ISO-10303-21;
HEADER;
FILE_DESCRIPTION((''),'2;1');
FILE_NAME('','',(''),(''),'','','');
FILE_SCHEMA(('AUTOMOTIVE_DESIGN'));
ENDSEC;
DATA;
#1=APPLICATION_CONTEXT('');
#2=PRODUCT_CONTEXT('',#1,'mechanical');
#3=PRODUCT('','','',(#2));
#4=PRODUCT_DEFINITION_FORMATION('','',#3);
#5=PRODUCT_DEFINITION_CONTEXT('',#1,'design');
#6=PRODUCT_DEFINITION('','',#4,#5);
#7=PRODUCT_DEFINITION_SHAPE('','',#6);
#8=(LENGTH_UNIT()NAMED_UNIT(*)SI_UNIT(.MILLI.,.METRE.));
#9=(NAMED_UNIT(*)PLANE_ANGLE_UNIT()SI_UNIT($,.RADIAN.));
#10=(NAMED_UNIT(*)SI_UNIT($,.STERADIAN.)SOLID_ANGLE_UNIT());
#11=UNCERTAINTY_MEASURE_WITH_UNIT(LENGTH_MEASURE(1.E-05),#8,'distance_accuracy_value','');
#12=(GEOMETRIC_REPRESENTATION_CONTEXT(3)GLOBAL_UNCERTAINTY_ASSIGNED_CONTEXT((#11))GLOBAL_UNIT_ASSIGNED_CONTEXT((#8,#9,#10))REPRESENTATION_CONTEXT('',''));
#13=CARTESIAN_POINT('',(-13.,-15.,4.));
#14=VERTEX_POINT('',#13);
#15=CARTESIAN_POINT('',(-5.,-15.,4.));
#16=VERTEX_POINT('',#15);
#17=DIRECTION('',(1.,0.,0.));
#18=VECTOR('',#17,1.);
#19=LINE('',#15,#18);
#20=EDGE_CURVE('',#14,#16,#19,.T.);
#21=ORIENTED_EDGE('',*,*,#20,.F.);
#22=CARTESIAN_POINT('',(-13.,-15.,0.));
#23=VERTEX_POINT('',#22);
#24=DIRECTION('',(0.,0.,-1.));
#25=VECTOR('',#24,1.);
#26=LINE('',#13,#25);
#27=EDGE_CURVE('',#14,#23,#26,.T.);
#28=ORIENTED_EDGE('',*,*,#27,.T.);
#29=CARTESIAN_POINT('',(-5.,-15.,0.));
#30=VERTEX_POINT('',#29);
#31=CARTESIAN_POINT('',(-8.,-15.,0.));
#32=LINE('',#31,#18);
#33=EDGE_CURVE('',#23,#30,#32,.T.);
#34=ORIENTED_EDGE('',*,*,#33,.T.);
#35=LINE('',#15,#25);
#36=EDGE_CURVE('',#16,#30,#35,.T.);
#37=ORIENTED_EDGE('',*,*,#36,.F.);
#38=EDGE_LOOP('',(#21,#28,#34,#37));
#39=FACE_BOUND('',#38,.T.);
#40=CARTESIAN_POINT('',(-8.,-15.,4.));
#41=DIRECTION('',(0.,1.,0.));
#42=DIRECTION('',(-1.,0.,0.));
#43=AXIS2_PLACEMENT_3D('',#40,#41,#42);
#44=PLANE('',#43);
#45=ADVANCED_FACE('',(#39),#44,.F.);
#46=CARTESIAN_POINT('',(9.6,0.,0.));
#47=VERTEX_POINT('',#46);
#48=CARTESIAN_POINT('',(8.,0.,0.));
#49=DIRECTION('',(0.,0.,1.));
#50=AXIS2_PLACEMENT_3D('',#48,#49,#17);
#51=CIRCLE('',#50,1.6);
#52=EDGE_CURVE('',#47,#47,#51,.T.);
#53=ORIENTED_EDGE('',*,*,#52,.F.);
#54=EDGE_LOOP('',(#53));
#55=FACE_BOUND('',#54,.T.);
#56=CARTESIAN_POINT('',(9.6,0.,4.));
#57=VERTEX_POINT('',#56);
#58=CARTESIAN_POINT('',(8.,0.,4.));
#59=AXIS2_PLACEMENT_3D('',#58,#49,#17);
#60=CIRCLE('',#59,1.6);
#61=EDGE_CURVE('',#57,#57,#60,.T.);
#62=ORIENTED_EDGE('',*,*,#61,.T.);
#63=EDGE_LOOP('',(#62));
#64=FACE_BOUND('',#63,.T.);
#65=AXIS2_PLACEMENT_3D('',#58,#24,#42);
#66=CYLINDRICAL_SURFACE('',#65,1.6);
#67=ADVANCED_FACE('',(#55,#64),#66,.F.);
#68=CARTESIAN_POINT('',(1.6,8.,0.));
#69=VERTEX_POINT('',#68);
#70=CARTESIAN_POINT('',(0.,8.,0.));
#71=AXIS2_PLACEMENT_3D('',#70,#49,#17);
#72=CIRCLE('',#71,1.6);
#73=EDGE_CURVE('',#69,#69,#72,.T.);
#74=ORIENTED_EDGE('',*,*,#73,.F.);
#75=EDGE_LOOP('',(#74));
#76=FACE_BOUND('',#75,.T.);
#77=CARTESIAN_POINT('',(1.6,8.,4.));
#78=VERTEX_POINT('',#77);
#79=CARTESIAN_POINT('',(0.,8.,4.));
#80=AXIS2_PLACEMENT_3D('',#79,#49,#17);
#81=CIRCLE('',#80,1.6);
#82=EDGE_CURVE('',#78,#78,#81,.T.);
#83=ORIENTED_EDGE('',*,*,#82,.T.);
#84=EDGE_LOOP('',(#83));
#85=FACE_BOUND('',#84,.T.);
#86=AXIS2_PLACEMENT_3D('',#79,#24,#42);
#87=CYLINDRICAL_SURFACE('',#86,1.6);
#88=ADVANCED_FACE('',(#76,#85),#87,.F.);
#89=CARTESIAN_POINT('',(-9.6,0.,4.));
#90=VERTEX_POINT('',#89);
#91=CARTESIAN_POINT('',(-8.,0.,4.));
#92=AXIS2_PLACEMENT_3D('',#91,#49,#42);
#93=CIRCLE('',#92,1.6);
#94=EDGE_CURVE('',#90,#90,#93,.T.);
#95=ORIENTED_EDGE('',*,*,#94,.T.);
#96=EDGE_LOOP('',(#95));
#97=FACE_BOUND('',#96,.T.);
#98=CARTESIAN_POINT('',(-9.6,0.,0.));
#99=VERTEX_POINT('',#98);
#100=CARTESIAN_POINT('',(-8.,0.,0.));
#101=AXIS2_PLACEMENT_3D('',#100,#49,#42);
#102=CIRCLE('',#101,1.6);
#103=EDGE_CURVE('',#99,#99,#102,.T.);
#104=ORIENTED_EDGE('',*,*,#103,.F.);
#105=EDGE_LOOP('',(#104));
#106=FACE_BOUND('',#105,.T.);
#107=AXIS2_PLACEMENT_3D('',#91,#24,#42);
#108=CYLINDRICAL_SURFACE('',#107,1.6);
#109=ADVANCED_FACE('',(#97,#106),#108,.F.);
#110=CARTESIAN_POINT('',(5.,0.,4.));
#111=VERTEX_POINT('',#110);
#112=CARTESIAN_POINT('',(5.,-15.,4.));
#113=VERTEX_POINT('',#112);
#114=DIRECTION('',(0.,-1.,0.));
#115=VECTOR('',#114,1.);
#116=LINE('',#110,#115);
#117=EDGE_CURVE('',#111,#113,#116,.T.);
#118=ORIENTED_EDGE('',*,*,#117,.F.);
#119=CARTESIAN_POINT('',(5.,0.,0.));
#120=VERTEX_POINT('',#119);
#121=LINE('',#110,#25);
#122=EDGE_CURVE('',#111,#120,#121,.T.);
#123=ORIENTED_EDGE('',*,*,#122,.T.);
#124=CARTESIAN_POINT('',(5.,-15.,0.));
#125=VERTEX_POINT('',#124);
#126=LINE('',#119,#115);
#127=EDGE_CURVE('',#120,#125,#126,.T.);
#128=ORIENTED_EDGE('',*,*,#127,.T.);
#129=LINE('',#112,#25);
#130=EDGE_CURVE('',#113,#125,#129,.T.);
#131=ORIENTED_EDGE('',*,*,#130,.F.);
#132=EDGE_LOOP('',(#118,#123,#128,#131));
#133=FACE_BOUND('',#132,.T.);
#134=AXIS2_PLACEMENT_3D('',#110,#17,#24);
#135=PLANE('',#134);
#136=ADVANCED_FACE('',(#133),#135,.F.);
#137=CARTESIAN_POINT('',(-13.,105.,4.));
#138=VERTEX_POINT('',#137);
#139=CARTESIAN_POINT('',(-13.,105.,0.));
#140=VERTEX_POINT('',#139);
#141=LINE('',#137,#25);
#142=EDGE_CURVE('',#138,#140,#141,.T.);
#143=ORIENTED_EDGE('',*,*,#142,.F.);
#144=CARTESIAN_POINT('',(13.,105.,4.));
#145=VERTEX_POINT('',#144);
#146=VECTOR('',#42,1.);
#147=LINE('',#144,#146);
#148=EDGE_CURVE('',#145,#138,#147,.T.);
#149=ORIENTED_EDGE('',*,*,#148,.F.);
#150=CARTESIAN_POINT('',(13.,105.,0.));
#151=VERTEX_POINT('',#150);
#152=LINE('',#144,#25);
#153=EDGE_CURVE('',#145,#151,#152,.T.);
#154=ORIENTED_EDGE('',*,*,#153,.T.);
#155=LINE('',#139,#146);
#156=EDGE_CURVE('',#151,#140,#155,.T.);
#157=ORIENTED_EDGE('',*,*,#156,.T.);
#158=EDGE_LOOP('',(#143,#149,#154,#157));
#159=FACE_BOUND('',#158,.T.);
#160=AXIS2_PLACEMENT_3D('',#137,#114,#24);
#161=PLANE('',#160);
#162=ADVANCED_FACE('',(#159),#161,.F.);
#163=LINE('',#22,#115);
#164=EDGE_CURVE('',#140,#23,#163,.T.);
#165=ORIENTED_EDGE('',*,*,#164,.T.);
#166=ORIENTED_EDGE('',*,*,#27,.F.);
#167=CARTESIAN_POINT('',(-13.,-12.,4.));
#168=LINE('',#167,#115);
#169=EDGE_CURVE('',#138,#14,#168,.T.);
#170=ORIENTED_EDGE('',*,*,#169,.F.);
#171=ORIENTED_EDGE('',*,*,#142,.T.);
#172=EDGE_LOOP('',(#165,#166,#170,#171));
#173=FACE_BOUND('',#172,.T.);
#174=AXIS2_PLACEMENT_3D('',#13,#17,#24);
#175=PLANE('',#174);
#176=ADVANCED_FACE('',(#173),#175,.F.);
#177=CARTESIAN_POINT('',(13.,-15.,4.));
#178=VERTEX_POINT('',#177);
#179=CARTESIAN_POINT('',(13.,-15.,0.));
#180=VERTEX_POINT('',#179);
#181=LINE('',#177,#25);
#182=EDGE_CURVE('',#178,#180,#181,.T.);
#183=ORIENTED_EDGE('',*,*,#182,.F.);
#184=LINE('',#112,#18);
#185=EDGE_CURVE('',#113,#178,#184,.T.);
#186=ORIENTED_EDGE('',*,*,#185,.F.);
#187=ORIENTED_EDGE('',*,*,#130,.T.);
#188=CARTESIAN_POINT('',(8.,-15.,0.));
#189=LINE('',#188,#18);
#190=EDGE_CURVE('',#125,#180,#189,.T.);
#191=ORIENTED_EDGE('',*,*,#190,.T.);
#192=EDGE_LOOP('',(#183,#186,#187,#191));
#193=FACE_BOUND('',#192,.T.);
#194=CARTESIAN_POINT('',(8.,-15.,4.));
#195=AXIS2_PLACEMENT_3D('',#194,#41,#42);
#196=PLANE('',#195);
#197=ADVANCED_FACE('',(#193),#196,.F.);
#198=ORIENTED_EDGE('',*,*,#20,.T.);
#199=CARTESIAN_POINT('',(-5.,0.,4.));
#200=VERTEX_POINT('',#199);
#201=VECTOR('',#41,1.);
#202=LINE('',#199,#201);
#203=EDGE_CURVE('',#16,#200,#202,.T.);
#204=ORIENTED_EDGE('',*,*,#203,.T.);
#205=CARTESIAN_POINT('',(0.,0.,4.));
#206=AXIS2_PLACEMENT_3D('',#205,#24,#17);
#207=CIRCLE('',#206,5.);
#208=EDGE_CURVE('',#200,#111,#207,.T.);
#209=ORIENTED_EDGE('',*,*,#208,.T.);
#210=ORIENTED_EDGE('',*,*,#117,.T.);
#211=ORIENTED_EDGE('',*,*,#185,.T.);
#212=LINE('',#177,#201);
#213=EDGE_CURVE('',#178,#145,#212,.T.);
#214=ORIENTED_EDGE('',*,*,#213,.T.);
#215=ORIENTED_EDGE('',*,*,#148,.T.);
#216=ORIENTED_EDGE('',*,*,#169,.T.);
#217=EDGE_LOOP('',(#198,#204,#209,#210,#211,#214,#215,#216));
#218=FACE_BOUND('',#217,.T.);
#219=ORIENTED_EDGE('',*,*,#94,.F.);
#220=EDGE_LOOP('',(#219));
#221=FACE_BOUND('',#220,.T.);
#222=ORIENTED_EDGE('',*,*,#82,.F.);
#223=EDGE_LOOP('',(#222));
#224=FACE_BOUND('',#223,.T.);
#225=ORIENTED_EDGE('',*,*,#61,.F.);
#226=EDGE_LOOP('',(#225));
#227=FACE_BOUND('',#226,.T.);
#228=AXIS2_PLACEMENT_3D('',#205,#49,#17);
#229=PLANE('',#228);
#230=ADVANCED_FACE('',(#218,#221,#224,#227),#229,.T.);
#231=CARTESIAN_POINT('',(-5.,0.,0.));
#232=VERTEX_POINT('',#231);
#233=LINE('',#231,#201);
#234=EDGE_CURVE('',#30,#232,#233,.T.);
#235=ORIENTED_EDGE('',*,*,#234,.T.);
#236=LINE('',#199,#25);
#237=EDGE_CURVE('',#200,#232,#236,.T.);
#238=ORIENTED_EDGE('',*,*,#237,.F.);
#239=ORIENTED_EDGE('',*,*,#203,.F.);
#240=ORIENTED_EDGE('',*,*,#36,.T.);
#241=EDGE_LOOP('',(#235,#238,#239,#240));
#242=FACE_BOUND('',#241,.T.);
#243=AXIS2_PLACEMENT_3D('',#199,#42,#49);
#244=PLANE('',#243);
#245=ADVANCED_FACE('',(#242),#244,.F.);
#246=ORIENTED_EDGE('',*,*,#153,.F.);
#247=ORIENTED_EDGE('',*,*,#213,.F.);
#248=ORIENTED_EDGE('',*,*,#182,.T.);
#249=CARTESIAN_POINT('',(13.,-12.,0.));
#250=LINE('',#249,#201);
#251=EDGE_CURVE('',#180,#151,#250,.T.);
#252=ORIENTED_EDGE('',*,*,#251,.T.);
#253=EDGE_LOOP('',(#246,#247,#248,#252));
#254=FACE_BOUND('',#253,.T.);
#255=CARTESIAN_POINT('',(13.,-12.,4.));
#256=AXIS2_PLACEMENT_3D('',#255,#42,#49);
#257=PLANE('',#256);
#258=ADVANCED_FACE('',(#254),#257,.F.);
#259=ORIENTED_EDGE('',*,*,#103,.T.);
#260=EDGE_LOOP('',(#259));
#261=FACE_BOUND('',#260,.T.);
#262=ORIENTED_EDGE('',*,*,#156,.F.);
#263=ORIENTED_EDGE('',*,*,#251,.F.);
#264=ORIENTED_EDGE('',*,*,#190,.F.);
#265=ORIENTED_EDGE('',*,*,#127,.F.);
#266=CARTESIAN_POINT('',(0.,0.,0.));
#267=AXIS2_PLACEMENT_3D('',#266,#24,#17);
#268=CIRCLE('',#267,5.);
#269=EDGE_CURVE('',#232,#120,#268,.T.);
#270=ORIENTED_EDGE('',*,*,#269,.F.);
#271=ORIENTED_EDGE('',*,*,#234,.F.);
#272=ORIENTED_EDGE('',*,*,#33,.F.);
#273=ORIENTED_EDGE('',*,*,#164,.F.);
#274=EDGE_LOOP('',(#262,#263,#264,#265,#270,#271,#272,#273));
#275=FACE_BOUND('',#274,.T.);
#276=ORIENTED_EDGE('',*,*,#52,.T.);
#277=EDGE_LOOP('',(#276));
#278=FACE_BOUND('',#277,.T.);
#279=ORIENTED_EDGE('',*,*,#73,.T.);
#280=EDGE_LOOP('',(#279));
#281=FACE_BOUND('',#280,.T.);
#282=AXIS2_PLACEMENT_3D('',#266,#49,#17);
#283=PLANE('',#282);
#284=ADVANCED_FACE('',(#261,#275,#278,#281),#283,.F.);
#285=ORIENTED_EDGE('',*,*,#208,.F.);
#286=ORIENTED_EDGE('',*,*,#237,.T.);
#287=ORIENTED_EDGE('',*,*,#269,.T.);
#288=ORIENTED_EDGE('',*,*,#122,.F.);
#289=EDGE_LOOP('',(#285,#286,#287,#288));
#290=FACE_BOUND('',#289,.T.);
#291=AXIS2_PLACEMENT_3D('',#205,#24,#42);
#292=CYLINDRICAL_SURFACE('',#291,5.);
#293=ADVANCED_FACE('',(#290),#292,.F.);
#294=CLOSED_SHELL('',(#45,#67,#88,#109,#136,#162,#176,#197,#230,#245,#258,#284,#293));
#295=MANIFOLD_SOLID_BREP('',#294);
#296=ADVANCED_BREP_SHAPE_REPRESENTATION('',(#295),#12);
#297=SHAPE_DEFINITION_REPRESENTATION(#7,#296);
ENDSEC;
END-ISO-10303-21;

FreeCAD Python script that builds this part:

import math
import FreeCAD as App
import Part
import Sketcher
from FreeCAD import Vector

doc = App.newDocument("Part")
params = doc.addObject("Spreadsheet::Sheet", "Params")
for row, (alias, value) in enumerate([
    ("sketch1_radius", "5 mm"),
    ("sketch1_diameter", "3.2 mm"),
    ("sketch1_width", "8 mm"),
    ("sketch1_height", "120 mm"),
    ("sketch1_height2", "15 mm"),
    ("pad1_length", "4 mm"),
], start=1):
    params.set(f"A{row}", alias)
    params.set(f"B{row}", "=" + value)
    params.setAlias(f"B{row}", alias)

body = doc.addObject("PartDesign::Body", "Body")

sketch1 = doc.addObject("Sketcher::SketchObject", "Sketch")
body.addObject(sketch1)
sketch1.AttachmentSupport = (doc.XY_Plane, [""])
sketch1.MapMode = "FlatFace"
sketch1.addGeometry([
    Part.LineSegment(Vector(-13, 105, 0), Vector(-13, -15, 0)),
    Part.LineSegment(Vector(-13, -15, 0), Vector(-5, -15, 0)),
    Part.LineSegment(Vector(-5, -15, 0), Vector(-5, 0, 0)),
    Part.ArcOfCircle(Part.Circle(Vector(0, 0, 0), Vector(0, 0, 1), 5), math.radians(0), math.radians(180)),
    Part.LineSegment(Vector(5, 0, 0), Vector(5, -15, 0)),
    Part.LineSegment(Vector(5, -15, 0), Vector(13, -15, 0)),
    Part.LineSegment(Vector(13, -15, 0), Vector(13, 105, 0)),
    Part.LineSegment(Vector(13, 105, 0), Vector(-13, 105, 0)),
    Part.Circle(Vector(8, 0, 0), Vector(0, 0, 1), 1.6),
    Part.Circle(Vector(-8, 0, 0), Vector(0, 0, 1), 1.6),
    Part.Circle(Vector(0, 8, 0), Vector(0, 0, 1), 1.6),
], False)
sketch1.addConstraint([
    Sketcher.Constraint("Coincident", 0, 2, 1, 1),
    Sketcher.Constraint("Coincident", 1, 2, 2, 1),
    Sketcher.Constraint("Tangent", 2, 2, 3, 2),
    Sketcher.Constraint("Tangent", 3, 1, 4, 1),
    Sketcher.Constraint("Coincident", 4, 2, 5, 1),
    Sketcher.Constraint("Coincident", 5, 2, 6, 1),
    Sketcher.Constraint("Coincident", 6, 2, 7, 1),
    Sketcher.Constraint("Coincident", 7, 2, 0, 1),
    Sketcher.Constraint("Vertical", 0),
    Sketcher.Constraint("Horizontal", 1),
    Sketcher.Constraint("Vertical", 2),
    Sketcher.Constraint("Vertical", 4),
    Sketcher.Constraint("Horizontal", 5),
    Sketcher.Constraint("Vertical", 6),
    Sketcher.Constraint("Horizontal", 7),
    Sketcher.Constraint("Coincident", 3, 3, -1, 1),
    Sketcher.Constraint("Equal", 8, 9),
    Sketcher.Constraint("Equal", 9, 10),
    Sketcher.Constraint("Symmetric", 8, 3, 9, 3, -1, 1),
    Sketcher.Constraint("Symmetric", 0, 2, 5, 2, -2),
    Sketcher.Constraint("PointOnObject", 8, 3, -1),
    Sketcher.Constraint("PointOnObject", 10, 3, -2),
    Sketcher.Constraint("Radius", 3, 5.0),
    Sketcher.Constraint("Diameter", 8, 3.2),
    Sketcher.Constraint("DistanceX", 1, 1, 1, 2, 8.0),
    Sketcher.Constraint("DistanceY", 0, 2, 0, 1, 120.0),
    Sketcher.Constraint("DistanceY", 2, 1, 2, 2, 15.0),
    Sketcher.Constraint("DistanceX", -1, 1, 8, 3, 8.0),
    Sketcher.Constraint("DistanceY", -1, 1, 10, 3, 8.0),
])
sketch1.setExpression("Constraints[22]", "Params.sketch1_radius")
sketch1.setExpression("Constraints[23]", "Params.sketch1_diameter")
sketch1.setExpression("Constraints[24]", "Params.sketch1_width")
sketch1.setExpression("Constraints[25]", "Params.sketch1_height")
sketch1.setExpression("Constraints[26]", "Params.sketch1_height2")
pad1 = doc.addObject("PartDesign::Pad", "Pad")
body.addObject(pad1)
pad1.Profile = sketch1
pad1.setExpression("Length", "Params.pad1_length")

doc.recompute()
